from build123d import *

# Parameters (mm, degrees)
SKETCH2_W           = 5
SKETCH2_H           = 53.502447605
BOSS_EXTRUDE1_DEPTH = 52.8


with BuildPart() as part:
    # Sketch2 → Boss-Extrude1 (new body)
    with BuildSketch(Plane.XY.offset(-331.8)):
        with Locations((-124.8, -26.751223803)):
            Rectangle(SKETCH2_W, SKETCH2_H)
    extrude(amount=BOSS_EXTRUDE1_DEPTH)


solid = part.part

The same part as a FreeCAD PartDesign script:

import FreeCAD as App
import Part
import Sketcher
from FreeCAD import Vector

doc = App.newDocument("Part")
body = doc.addObject("PartDesign::Body", "Body")

# Sketch on XY plane
sketch1 = doc.addObject("Sketcher::SketchObject", "Sketch")
body.addObject(sketch1)
sketch1.AttachmentSupport = (doc.XY_Plane, [""])
sketch1.MapMode = "FlatFace"
sketch1.AttachmentOffset = App.Placement(Vector(0, 0, -331.8), App.Rotation())
sketch1.addGeometry([
    Part.LineSegment(Vector(-127, 0, 0), Vector(-127, -54, 0)),
    Part.LineSegment(Vector(-127, -54, 0), Vector(-122, -54, 0)),
    Part.LineSegment(Vector(-122, -54, 0), Vector(-122, 0, 0)),
    Part.LineSegment(Vector(-122, 0, 0), Vector(-127, 0, 0)),
], False)
sketch1.addConstraint([
    Sketcher.Constraint("Coincident", 0, 2, 1, 1),
    Sketcher.Constraint("Coincident", 1, 2, 2, 1),
    Sketcher.Constraint("Coincident", 2, 2, 3, 1),
    Sketcher.Constraint("Coincident", 3, 2, 0, 1),
    Sketcher.Constraint("Vertical", 0),
    Sketcher.Constraint("Horizontal", 1),
    Sketcher.Constraint("Vertical", 2),
    Sketcher.Constraint("Horizontal", 3),
    Sketcher.Constraint("PointOnObject", 2, 2, -1),
    Sketcher.Constraint("DistanceX", 1, 1, 1, 2, 5.0),
    Sketcher.Constraint("DistanceX", 0, 2, -1, 1, 127.3),
    Sketcher.Constraint("DistanceY", 0, 2, 0, 1, 53.502448),
])
pad1 = doc.addObject("PartDesign::Pad", "Pad")
body.addObject(pad1)
pad1.Profile = sketch1
pad1.Length = 52.8

doc.recompute()
